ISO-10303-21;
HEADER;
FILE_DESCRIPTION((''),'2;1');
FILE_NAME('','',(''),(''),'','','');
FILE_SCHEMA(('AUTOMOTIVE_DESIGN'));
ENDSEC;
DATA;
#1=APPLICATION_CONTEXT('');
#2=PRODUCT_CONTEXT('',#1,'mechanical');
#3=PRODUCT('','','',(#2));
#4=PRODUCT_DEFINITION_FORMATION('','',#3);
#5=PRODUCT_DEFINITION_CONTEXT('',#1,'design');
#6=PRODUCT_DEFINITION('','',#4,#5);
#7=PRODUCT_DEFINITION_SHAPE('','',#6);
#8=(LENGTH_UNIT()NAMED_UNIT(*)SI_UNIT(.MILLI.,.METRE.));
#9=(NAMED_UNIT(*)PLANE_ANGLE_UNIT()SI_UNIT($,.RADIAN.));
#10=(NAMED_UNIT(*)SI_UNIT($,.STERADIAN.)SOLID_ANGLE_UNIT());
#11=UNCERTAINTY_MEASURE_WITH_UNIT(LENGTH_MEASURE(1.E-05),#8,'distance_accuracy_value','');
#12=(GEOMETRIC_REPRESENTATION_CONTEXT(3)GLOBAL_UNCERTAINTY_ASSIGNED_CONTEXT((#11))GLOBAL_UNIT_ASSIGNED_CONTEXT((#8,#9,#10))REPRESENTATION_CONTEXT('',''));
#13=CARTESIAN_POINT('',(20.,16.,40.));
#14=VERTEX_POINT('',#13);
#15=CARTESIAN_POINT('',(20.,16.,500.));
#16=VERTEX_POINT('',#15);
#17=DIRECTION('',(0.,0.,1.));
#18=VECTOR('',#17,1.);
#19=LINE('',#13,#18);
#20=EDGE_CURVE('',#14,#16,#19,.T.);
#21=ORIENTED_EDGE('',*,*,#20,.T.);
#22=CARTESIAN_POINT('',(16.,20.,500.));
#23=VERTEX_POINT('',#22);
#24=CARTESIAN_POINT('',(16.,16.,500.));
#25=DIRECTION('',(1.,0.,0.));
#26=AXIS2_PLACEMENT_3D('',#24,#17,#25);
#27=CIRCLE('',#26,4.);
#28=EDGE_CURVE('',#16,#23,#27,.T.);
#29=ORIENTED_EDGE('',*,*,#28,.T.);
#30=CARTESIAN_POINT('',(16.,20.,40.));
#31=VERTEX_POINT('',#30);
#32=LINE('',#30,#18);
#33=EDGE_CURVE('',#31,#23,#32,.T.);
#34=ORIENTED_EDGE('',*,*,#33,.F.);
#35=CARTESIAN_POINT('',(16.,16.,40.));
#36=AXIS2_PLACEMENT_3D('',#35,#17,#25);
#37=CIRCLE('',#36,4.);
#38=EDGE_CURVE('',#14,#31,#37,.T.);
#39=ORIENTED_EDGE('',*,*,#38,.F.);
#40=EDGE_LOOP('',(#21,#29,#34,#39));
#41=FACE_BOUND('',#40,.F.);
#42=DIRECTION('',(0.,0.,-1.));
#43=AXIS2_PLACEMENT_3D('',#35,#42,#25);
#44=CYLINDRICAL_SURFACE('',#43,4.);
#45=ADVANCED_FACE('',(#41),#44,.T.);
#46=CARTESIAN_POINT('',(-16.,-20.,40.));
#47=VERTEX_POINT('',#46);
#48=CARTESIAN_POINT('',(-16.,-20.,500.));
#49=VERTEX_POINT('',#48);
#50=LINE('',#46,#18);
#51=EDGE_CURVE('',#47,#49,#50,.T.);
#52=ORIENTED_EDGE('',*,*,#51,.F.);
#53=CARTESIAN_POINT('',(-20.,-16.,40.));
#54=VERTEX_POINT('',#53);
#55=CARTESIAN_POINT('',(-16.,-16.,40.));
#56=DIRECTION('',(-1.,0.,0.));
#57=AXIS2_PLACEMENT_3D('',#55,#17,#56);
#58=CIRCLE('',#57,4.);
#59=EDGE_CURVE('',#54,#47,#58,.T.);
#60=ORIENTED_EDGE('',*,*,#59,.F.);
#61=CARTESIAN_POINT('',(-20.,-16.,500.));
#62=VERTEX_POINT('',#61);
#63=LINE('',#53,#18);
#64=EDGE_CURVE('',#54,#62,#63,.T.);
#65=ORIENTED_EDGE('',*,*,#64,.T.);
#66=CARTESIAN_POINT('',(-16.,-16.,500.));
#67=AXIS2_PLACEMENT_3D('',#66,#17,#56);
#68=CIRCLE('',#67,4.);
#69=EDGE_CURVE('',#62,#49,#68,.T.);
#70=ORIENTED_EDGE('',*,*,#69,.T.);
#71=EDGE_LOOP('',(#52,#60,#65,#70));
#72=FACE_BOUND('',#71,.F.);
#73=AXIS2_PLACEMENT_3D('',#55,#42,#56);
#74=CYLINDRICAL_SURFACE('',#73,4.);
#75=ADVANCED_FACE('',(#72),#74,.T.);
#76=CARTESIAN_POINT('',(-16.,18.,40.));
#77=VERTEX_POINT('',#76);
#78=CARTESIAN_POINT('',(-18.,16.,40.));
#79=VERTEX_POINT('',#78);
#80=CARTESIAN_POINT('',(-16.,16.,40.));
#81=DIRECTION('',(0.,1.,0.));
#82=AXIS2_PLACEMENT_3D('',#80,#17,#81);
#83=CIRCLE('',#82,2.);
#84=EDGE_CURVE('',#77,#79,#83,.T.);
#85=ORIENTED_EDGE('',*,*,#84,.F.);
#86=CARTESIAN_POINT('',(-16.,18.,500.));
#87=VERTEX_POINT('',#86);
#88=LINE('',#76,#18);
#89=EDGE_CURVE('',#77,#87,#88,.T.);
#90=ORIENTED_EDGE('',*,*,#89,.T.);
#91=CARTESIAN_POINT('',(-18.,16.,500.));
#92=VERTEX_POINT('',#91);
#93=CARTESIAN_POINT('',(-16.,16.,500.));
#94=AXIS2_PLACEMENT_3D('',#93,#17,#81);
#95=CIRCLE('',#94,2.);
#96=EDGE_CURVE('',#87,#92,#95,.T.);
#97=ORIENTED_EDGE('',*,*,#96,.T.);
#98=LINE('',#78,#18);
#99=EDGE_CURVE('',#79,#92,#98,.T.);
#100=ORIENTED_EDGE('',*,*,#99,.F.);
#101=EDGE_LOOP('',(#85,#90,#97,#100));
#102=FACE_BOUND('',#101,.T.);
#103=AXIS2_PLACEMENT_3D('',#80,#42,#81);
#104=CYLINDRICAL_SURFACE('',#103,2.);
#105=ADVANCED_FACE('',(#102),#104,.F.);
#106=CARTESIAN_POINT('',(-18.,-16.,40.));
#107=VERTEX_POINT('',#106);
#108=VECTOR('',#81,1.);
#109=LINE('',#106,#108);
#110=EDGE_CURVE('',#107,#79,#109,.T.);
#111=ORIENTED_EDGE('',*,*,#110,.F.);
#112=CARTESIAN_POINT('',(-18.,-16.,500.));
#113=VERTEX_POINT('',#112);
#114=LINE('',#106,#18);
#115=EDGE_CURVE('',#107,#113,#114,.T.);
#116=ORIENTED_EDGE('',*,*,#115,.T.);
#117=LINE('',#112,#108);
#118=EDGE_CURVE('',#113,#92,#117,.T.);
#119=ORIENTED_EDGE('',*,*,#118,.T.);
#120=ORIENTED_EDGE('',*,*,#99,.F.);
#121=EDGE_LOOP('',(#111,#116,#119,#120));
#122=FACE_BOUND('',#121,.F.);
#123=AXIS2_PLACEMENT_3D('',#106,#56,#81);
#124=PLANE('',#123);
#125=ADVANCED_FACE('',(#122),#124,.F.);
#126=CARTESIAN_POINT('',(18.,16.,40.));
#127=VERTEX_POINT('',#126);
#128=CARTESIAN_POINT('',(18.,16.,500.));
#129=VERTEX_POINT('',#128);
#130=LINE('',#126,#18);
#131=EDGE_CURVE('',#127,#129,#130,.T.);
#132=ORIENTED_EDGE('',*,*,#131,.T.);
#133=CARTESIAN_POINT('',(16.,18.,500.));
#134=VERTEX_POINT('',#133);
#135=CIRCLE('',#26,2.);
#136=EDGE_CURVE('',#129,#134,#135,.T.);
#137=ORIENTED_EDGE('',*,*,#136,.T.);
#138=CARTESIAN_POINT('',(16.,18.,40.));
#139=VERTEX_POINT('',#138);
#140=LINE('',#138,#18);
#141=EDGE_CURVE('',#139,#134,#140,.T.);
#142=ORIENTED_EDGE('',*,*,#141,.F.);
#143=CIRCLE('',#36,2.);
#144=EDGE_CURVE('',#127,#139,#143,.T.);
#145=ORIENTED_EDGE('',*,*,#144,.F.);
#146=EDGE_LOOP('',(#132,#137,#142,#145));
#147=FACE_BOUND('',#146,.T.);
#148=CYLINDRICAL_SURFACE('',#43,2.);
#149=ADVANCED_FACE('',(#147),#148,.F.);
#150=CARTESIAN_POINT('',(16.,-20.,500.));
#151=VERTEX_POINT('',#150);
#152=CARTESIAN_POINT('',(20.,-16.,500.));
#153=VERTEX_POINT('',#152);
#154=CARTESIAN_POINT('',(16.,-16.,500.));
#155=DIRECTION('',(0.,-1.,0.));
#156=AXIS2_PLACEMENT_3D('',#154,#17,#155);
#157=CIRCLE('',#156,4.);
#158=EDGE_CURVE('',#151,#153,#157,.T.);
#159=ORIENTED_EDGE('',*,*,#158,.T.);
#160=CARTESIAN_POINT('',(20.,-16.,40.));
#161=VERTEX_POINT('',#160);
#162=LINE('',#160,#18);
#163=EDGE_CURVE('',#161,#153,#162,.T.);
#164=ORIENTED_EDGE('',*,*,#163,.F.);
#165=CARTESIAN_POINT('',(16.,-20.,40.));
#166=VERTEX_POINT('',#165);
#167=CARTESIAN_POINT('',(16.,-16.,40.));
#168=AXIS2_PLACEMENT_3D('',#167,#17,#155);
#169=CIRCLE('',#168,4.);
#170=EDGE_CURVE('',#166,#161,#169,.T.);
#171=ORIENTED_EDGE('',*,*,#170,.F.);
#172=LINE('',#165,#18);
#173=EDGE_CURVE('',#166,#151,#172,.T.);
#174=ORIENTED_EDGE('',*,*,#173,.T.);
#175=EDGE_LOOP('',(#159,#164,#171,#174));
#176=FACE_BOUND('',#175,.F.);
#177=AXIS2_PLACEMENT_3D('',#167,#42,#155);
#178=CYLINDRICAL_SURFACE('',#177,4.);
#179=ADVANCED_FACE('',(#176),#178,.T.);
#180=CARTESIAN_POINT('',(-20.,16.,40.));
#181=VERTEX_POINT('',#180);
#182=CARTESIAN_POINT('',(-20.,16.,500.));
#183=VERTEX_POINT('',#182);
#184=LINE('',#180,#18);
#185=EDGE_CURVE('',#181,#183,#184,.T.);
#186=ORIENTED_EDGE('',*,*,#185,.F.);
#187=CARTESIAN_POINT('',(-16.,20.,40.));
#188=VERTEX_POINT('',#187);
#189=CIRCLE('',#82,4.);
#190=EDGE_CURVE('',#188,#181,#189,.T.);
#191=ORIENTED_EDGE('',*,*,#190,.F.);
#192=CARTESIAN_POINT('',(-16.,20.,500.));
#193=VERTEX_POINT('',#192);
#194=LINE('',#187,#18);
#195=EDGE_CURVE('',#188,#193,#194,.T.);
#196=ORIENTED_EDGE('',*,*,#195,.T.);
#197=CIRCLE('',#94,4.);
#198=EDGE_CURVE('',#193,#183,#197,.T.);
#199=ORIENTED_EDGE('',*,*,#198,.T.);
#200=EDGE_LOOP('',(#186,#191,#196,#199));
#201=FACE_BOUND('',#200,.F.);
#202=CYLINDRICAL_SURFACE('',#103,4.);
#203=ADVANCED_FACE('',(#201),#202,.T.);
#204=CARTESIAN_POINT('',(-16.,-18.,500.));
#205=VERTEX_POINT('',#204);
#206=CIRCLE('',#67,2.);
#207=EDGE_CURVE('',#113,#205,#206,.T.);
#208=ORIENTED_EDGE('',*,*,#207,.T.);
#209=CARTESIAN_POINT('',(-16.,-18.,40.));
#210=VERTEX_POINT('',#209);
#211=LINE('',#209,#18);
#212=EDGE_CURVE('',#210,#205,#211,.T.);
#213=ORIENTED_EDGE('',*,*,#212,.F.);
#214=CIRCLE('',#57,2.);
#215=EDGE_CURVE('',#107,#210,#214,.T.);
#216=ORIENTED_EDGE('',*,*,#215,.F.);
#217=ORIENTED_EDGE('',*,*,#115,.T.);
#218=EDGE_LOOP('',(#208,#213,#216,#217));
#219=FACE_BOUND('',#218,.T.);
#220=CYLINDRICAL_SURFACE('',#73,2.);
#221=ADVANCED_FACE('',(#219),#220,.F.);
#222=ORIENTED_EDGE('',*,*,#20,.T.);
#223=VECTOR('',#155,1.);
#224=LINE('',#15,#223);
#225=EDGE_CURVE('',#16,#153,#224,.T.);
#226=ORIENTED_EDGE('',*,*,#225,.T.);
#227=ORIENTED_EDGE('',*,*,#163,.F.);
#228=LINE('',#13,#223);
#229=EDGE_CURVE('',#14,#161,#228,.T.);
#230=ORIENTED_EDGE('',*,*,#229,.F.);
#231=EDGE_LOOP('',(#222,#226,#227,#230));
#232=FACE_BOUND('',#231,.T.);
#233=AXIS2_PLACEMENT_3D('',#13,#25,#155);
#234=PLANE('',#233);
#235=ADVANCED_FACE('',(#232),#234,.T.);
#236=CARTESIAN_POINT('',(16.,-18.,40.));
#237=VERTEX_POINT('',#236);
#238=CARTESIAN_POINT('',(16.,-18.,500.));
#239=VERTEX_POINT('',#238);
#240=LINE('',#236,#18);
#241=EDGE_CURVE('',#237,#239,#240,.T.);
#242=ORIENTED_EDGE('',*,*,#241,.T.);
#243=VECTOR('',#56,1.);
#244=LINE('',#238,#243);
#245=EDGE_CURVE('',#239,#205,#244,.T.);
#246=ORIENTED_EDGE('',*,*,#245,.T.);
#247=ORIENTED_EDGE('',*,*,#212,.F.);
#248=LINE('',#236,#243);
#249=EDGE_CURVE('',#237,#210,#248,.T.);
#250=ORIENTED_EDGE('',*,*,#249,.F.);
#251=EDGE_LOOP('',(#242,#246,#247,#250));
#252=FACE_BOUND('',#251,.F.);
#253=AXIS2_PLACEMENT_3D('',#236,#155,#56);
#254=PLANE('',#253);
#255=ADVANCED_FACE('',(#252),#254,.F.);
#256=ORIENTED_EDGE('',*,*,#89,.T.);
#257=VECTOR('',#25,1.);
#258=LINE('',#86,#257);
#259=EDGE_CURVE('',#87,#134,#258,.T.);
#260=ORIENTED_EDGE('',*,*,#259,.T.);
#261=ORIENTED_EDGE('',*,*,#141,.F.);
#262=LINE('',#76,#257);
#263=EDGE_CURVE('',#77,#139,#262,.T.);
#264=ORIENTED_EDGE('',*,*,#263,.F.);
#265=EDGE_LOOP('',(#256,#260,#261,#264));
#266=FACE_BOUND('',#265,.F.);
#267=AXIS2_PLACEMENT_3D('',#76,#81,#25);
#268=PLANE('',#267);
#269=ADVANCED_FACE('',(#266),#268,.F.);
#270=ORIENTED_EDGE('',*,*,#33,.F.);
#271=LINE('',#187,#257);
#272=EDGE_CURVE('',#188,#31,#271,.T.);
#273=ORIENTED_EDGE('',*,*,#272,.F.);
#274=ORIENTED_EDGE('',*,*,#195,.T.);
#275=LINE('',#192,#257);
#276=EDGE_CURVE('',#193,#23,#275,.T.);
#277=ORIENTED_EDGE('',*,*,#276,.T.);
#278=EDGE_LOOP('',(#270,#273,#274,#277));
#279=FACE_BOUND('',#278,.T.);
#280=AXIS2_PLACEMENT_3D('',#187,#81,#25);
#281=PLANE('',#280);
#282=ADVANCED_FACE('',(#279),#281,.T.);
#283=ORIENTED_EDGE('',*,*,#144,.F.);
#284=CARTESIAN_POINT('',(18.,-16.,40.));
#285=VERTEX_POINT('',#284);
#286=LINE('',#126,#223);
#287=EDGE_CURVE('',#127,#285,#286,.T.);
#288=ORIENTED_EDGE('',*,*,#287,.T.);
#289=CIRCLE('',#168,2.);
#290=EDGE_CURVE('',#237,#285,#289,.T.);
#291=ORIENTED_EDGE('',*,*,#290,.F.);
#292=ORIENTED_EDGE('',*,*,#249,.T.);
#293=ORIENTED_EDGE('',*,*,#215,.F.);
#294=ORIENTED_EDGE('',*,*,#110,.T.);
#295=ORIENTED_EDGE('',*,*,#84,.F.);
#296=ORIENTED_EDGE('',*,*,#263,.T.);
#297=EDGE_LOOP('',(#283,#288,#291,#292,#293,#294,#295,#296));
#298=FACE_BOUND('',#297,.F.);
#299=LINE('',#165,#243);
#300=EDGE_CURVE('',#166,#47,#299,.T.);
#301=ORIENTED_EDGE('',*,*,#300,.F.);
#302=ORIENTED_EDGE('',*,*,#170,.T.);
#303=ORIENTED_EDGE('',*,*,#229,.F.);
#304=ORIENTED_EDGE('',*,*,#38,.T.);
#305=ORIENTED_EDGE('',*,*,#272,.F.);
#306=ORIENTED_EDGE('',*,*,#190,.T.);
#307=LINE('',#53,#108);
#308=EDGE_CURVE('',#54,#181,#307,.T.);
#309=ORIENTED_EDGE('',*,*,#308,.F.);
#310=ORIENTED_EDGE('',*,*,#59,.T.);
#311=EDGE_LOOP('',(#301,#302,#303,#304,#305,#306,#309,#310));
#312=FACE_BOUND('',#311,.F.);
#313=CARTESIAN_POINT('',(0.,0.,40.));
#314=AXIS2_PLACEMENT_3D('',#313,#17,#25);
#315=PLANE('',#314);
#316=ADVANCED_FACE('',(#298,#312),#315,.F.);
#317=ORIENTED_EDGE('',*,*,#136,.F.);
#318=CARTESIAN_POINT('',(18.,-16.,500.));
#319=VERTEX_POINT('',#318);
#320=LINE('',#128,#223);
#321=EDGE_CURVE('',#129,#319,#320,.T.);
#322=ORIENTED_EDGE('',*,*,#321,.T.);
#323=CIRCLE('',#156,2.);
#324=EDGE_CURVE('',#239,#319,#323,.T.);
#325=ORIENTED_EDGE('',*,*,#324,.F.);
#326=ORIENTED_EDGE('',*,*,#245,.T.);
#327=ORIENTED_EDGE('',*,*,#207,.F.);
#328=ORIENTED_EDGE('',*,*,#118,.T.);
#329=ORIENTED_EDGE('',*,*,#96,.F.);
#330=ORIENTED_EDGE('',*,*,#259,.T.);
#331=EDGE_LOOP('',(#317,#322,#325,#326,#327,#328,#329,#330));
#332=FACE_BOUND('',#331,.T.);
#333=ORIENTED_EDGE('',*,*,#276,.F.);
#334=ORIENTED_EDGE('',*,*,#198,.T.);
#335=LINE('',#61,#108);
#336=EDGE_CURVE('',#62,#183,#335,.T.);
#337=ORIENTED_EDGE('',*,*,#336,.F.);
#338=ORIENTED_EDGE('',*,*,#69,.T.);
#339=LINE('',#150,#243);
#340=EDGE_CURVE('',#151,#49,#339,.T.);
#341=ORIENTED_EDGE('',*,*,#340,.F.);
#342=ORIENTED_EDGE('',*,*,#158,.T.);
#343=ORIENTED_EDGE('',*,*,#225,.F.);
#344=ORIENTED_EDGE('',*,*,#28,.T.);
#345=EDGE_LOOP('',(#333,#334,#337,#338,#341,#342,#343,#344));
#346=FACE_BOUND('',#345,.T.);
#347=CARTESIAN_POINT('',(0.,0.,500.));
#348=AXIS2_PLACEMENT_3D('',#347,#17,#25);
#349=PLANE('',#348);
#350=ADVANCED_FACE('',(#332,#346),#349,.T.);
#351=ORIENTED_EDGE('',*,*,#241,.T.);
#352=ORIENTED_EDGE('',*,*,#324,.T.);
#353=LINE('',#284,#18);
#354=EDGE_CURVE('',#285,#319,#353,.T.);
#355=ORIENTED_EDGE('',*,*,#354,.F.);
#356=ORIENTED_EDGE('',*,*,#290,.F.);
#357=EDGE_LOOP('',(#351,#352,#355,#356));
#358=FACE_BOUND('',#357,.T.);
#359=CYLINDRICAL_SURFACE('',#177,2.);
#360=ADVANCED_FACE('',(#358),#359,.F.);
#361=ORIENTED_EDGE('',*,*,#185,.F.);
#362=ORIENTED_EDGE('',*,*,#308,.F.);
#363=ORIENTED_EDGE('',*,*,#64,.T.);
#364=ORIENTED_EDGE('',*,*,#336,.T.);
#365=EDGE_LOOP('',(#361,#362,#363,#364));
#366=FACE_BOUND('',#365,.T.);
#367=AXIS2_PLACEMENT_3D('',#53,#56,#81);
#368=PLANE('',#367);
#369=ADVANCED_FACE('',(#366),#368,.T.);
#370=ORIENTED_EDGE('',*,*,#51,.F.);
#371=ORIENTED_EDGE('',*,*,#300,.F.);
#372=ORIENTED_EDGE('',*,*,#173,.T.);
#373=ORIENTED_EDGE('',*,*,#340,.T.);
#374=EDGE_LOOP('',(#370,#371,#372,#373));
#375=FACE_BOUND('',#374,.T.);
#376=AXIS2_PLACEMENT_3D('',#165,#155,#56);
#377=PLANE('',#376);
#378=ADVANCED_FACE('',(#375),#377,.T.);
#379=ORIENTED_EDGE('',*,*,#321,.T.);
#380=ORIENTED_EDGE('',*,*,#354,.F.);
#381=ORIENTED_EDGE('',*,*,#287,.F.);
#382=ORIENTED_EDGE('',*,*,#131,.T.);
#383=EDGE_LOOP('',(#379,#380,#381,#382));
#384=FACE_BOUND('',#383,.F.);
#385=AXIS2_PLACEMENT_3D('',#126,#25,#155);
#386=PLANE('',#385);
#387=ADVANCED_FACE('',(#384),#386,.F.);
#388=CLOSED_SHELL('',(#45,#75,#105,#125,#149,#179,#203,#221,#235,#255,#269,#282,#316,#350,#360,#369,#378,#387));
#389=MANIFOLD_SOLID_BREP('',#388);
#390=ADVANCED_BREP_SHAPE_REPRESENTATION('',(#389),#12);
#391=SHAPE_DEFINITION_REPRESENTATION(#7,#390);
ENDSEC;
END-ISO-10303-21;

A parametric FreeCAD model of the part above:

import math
import FreeCAD as App
import Part
import Sketcher

V = App.Vector

doc = App.newDocument("Part")
params = doc.addObject("Spreadsheet::Sheet", "Params")
for row, (alias, value) in enumerate([
    ("sketch1_radius", "4 mm"),
    ("sketch1_radius2", "2 mm"),
    ("pad1_length", "460 mm"),
], start=1):
    params.set(f"A{row}", alias)
    params.set(f"B{row}", "=" + value)
    params.setAlias(f"B{row}", alias)

body = doc.addObject("PartDesign::Body", "Body")

sketch1 = body.newObject("Sketcher::SketchObject", "Sketch")
sketch1.AttachmentSupport = (doc.getObject("XY_Plane"), [""])
sketch1.MapMode = "FlatFace"
sketch1.AttachmentOffset = App.Placement(V(0, 0, 40), App.Rotation())
sketch1.addGeometry([
    Part.LineSegment(V(-20, 16, 0), V(-20, -16, 0)),
    Part.ArcOfCircle(Part.Circle(V(-16, -16, 0), V(0, 0, 1), 4), math.radians(180), math.radians(270)),
    Part.LineSegment(V(-16, -20, 0), V(16, -20, 0)),
    Part.ArcOfCircle(Part.Circle(V(16, -16, 0), V(0, 0, 1), 4), math.radians(-90), math.radians(0)),
    Part.LineSegment(V(20, -16, 0), V(20, 16, 0)),
    Part.ArcOfCircle(Part.Circle(V(16, 16, 0), V(0, 0, 1), 4), math.radians(0), math.radians(90)),
    Part.LineSegment(V(16, 20, 0), V(-16, 20, 0)),
    Part.ArcOfCircle(Part.Circle(V(-16, 16, 0), V(0, 0, 1), 4), math.radians(90), math.radians(180)),
    Part.ArcOfCircle(Part.Circle(V(-16, 16, 0), V(0, 0, 1), 2), math.radians(90), math.radians(180)),
    Part.LineSegment(V(-16, 18, 0), V(16, 18, 0)),
    Part.ArcOfCircle(Part.Circle(V(16, 16, 0), V(0, 0, 1), 2), math.radians(0), math.radians(90)),
    Part.LineSegment(V(18, 16, 0), V(18, -16, 0)),
    Part.ArcOfCircle(Part.Circle(V(16, -16, 0), V(0, 0, 1), 2), math.radians(-90), math.radians(0)),
    Part.LineSegment(V(16, -18, 0), V(-16, -18, 0)),
    Part.ArcOfCircle(Part.Circle(V(-16, -16, 0), V(0, 0, 1), 2), math.radians(180), math.radians(270)),
    Part.LineSegment(V(-18, -16, 0), V(-18, 16, 0)),
], False)
sketch1.addConstraint([
    Sketcher.Constraint("Tangent", 0, 2, 1, 1),
    Sketcher.Constraint("Tangent", 1, 2, 2, 1),
    Sketcher.Constraint("Tangent", 2, 2, 3, 1),
    Sketcher.Constraint("Tangent", 3, 2, 4, 1),
    Sketcher.Constraint("Tangent", 4, 2, 5, 1),
    Sketcher.Constraint("Tangent", 5, 2, 6, 1),
    Sketcher.Constraint("Tangent", 6, 2, 7, 1),
    Sketcher.Constraint("Tangent", 7, 2, 0, 1),
    Sketcher.Constraint("Tangent", 8, 1, 9, 1),
    Sketcher.Constraint("Tangent", 9, 2, 10, 2),
    Sketcher.Constraint("Tangent", 10, 1, 11, 1),
    Sketcher.Constraint("Tangent", 11, 2, 12, 2),
    Sketcher.Constraint("Tangent", 12, 1, 13, 1),
    Sketcher.Constraint("Tangent", 13, 2, 14, 2),
    Sketcher.Constraint("Tangent", 14, 1, 15, 1),
    Sketcher.Constraint("Tangent", 15, 2, 8, 2),
    Sketcher.Constraint("Vertical", 0),
    Sketcher.Constraint("Horizontal", 2),
    Sketcher.Constraint("Vertical", 4),
    Sketcher.Constraint("Horizontal", 6),
    Sketcher.Constraint("Horizontal", 9),
    Sketcher.Constraint("Vertical", 11),
    Sketcher.Constraint("Horizontal", 13),
    Sketcher.Constraint("Vertical", 15),
    Sketcher.Constraint("Coincident", 8, 3, 7, 3),
    Sketcher.Constraint("Coincident", 10, 3, 5, 3),
    Sketcher.Constraint("Coincident", 12, 3, 3, 3),
    Sketcher.Constraint("Equal", 1, 3),
    Sketcher.Constraint("Equal", 3, 5),
    Sketcher.Constraint("Equal", 5, 7),
    Sketcher.Constraint("Equal", 12, 14),
    Sketcher.Constraint("Symmetric", 1, 3, 5, 3, -1, 1),
    Sketcher.Constraint("Equal", 13, 0),
    Sketcher.Constraint("Radius", 1, 4.0),
    Sketcher.Constraint("Radius", 8, 2.0),
    Sketcher.Constraint("DistanceX", 0, 2, -1, 1, 20.0),
])
sketch1.setExpression("Constraints[33]", "Params.sketch1_radius")
sketch1.setExpression("Constraints[34]", "Params.sketch1_radius2")
pad1 = body.newObject("PartDesign::Pad", "Pad")
pad1.Profile = sketch1
pad1.setExpression("Length", "Params.pad1_length")

doc.recompute()
